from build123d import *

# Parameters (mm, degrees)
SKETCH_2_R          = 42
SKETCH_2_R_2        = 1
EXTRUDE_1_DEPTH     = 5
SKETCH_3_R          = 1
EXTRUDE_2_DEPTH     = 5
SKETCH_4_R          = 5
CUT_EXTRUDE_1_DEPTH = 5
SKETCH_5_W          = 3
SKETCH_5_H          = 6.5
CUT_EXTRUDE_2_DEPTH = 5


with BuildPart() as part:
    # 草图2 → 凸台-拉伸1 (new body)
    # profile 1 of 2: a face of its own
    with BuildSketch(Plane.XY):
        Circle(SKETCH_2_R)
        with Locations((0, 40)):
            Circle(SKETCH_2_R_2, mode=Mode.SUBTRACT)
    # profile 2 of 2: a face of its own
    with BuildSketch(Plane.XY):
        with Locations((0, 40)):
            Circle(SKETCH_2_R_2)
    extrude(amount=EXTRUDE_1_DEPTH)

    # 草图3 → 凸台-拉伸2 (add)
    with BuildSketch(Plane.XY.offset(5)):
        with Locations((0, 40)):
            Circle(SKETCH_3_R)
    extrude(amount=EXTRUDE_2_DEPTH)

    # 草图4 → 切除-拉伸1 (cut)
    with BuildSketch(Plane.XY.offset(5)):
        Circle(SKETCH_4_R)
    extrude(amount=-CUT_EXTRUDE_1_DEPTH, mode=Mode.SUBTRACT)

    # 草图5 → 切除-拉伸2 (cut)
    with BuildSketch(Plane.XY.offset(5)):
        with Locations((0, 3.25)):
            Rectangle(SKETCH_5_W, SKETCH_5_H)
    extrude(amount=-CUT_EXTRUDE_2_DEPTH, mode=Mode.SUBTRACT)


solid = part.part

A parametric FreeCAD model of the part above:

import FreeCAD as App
import Part
import Sketcher


def add_polygon(sketch, points):
    """Adds a closed chain of lines whose ends are joined by coincident constraints."""
    first, n = sketch.GeometryCount, len(points)
    for a, b in zip(points, points[1:] + points[:1]):
        sketch.addGeometry(Part.LineSegment(App.Vector(*a, 0), App.Vector(*b, 0)), False)
    for i in range(n):
        sketch.addConstraint(Sketcher.Constraint("Coincident", first + i, 2, first + (i + 1) % n, 1))

doc = App.newDocument("Part")
body = doc.addObject("PartDesign::Body", "Body")

# Sketch on XY plane
sketch1 = doc.addObject("Sketcher::SketchObject", "Sketch")
body.addObject(sketch1)
sketch1.AttachmentSupport = (doc.XY_Plane, [""])
sketch1.MapMode = "FlatFace"
sketch1.addGeometry(Part.Circle(App.Vector(0, 0, 0), App.Vector(0, 0, 1), 42), False)
sketch1.addConstraint([
    Sketcher.Constraint("Coincident", 0, 3, -1, 1),
    Sketcher.Constraint("Diameter", 0, 84.0),
])
pad1 = doc.addObject("PartDesign::Pad", "Pad")
body.addObject(pad1)
pad1.Profile = sketch1
pad1.Length = 5

# Sketch on XY plane
sketch2 = doc.addObject("Sketcher::SketchObject", "Sketch001")
body.addObject(sketch2)
sketch2.AttachmentSupport = (doc.XY_Plane, [""])
sketch2.MapMode = "FlatFace"
sketch2.AttachmentOffset = App.Placement(App.Vector(0, 0, 5), App.Rotation())
sketch2.addGeometry(Part.Circle(App.Vector(0, 40, 0), App.Vector(0, 0, 1), 1), False)
sketch2.addConstraint([
    Sketcher.Constraint("PointOnObject", 0, 3, -2),
    Sketcher.Constraint("Diameter", 0, 2.0),
    Sketcher.Constraint("DistanceY", -1, 1, 0, 3, 40.0),
])
pad2 = doc.addObject("PartDesign::Pad", "Pad001")
body.addObject(pad2)
pad2.Profile = sketch2
pad2.Length = 5

# Sketch on XY plane
sketch3 = doc.addObject("Sketcher::SketchObject", "Sketch002")
body.addObject(sketch3)
sketch3.AttachmentSupport = (doc.XY_Plane, [""])
sketch3.MapMode = "FlatFace"
sketch3.AttachmentOffset = App.Placement(App.Vector(0, 0, 5), App.Rotation())
sketch3.addGeometry(Part.Circle(App.Vector(0, 0, 0), App.Vector(0, 0, 1), 5), False)
sketch3.addConstraint([
    Sketcher.Constraint("Coincident", 0, 3, -1, 1),
    Sketcher.Constraint("Diameter", 0, 10.0),
])
pocket1 = doc.addObject("PartDesign::Pocket", "Pocket")
body.addObject(pocket1)
pocket1.Profile = sketch3
pocket1.Length = 5

# Sketch on XY plane
sketch4 = doc.addObject("Sketcher::SketchObject", "Sketch003")
body.addObject(sketch4)
sketch4.AttachmentSupport = (doc.XY_Plane, [""])
sketch4.MapMode = "FlatFace"
sketch4.AttachmentOffset = App.Placement(App.Vector(0, 0, 5), App.Rotation())
add_polygon(sketch4, [(-1.5, 6.5), (-1.5, 0), (1.5, 0), (1.5, 6.5)])  # lines 0-3
sketch4.addConstraint([
    Sketcher.Constraint("Vertical", 0),
    Sketcher.Constraint("Horizontal", 1),
    Sketcher.Constraint("Vertical", 2),
    Sketcher.Constraint("Horizontal", 3),
    Sketcher.Constraint("Symmetric", 0, 2, 1, 2, -1, 1),
    Sketcher.Constraint("DistanceX", 1, 1, 1, 2, 3.0),
    Sketcher.Constraint("DistanceY", 0, 2, 0, 1, 6.5),
])
pocket2 = doc.addObject("PartDesign::Pocket", "Pocket001")
body.addObject(pocket2)
pocket2.Profile = sketch4
pocket2.Length = 5

doc.recompute()
